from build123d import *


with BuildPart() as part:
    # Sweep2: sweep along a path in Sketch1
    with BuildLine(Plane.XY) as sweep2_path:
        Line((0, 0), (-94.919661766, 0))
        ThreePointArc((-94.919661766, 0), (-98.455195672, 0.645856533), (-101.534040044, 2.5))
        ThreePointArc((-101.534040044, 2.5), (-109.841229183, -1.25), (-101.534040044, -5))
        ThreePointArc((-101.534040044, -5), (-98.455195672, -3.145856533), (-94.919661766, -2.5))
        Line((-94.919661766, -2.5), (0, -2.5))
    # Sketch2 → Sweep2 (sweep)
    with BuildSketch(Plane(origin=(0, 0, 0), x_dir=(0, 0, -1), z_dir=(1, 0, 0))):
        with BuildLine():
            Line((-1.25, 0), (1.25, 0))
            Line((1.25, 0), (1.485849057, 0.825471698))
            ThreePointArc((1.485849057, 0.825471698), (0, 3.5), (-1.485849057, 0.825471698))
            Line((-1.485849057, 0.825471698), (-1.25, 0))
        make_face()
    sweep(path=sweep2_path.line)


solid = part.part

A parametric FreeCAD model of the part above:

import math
import FreeCAD as App
import Part
import Sketcher

V = App.Vector

doc = App.newDocument("Part")
body = doc.addObject("PartDesign::Body", "Body")

sketch1 = body.newObject("Sketcher::SketchObject", "Sketch")
sketch1.AttachmentSupport = (doc.getObject("YZ_Plane"), [""])
sketch1.MapMode = "FlatFace"
sketch1.addGeometry([
    Part.LineSegment(V(0, 1.2, 0), V(0, -1.2, 0)),
    Part.LineSegment(V(0, -1.2, 0), V(0.8, -1.5, 0)),
    Part.ArcOfCircle(Part.Circle(V(1.8, 0, 0), V(0, 0, 1), 1.8), math.radians(-122), math.radians(122)),
    Part.LineSegment(V(0.8, 1.5, 0), V(0, 1.2, 0)),
], False)
sketch1.addConstraint([
    Sketcher.Constraint("Coincident", 0, 2, 1, 1),
    Sketcher.Constraint("Coincident", 1, 2, 2, 1),
    Sketcher.Constraint("Coincident", 2, 2, 3, 1),
    Sketcher.Constraint("Coincident", 3, 2, 0, 1),
    Sketcher.Constraint("Vertical", 0),
    Sketcher.Constraint("Symmetric", 0, 2, 3, 2, -1, 1),
    Sketcher.Constraint("Symmetric", 1, 2, 2, 2, -1),
    Sketcher.Constraint("Radius", 2, 1.75),
    Sketcher.Constraint("DistanceY", 0, 2, 0, 1, 2.5),
    Sketcher.Constraint("DistanceX", -1, 1, 2, 3, 1.75),
    Sketcher.Constraint("DistanceY", 1, 2, 2, 2, 2.971698),
])

sketch2 = body.newObject("Sketcher::SketchObject", "Sketch001")
sketch2.AttachmentSupport = (doc.getObject("XY_Plane"), [""])
sketch2.MapMode = "FlatFace"
sketch2.addGeometry([
    Part.LineSegment(V(0, 0, 0), V(-95, 0, 0)),
    Part.ArcOfCircle(Part.Circle(V(-95, 10, 0), V(0, 0, 1), 10), math.radians(-131), math.radians(-90)),
    Part.ArcOfCircle(Part.Circle(V(-105, -1, 0), V(0, 0, 1), 5), math.radians(49), math.radians(311)),
    Part.ArcOfCircle(Part.Circle(V(-95, -13, 0), V(0, 0, 1), 10), math.radians(90), math.radians(131)),
    Part.LineSegment(V(-95, -2, 0), V(0, -2, 0)),
], False)
sketch2.addConstraint([
    Sketcher.Constraint("Tangent", 0, 2, 1, 2),
    Sketcher.Constraint("Tangent", 1, 1, 2, 1),
    Sketcher.Constraint("Tangent", 2, 2, 3, 2),
    Sketcher.Constraint("Tangent", 3, 1, 4, 1),
    Sketcher.Constraint("Horizontal", 0),
    Sketcher.Constraint("Horizontal", 4),
    Sketcher.Constraint("Coincident", 0, 1, -1, 1),
    Sketcher.Constraint("Equal", 1, 3),
    Sketcher.Constraint("PointOnObject", 4, 2, -2),
    Sketcher.Constraint("Vertical", 1, 3, 3, 3),
    Sketcher.Constraint("Radius", 1, 10.0),
    Sketcher.Constraint("Radius", 2, 5.0),
    Sketcher.Constraint("DistanceY", 2, 2, -1, 1, 5.0),
    Sketcher.Constraint("DistanceX", 0, 2, 0, 1, 94.919662),
])
doc.recompute()

additivepipe = body.newObject("PartDesign::AdditivePipe", "AdditivePipe")
additivepipe.Profile = sketch1
additivepipe.Spine = (sketch2, ["Edge1", "Edge2", "Edge3", "Edge4", "Edge5"])

doc.recompute()
